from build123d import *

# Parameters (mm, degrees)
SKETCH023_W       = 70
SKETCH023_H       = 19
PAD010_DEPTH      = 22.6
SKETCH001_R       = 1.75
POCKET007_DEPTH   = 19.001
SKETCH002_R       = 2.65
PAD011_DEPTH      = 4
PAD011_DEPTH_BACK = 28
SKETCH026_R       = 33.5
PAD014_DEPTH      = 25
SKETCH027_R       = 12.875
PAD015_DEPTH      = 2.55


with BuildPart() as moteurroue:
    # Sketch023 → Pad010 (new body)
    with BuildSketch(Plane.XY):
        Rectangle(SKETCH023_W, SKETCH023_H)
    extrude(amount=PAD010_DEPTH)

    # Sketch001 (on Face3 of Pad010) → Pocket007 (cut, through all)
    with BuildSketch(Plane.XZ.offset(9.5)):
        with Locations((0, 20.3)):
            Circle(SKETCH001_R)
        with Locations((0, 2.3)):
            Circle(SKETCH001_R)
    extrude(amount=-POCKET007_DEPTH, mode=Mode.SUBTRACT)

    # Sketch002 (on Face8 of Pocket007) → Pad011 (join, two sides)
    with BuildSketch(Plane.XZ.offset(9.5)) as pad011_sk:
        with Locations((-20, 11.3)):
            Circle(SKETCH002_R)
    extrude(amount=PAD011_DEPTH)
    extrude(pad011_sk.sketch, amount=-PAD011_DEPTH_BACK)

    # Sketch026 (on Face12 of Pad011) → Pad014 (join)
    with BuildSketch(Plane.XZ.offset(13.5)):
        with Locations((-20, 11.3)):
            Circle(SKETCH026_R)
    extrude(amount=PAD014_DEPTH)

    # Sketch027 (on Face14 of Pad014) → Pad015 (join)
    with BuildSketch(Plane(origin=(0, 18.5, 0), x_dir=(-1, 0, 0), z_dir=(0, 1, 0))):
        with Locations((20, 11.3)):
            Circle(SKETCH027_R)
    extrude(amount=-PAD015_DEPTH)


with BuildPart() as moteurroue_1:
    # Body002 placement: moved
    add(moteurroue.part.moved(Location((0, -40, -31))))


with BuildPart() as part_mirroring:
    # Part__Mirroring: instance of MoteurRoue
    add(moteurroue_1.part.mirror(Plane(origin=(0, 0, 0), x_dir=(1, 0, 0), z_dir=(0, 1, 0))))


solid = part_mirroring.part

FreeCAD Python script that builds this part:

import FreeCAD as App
import Part
import Sketcher

doc = App.newDocument("Part")
params = doc.addObject("Spreadsheet::Sheet", "Params")
for row, (alias, value) in enumerate([
    ("sketch1_width", "70 mm"),
    ("sketch1_height", "19 mm"),
    ("pad1_length", "22.6 mm"),
    ("sketch2_diameter", "3.5 mm"),
    ("sketch3_diameter", "5.3 mm"),
    ("pad2_length", "4 mm"),
    ("pad2_length2", "28 mm"),
    ("sketch4_diameter", "67 mm"),
    ("pad3_length", "25 mm"),
    ("sketch5_diameter", "25.75 mm"),
    ("pad4_length", "2.55 mm"),
], start=1):
    params.set(f"A{row}", alias)
    params.set(f"B{row}", "=" + value)
    params.setAlias(f"B{row}", alias)

body = doc.addObject("PartDesign::Body", "Body")

# Sketch on XY plane
sketch1 = body.newObject("Sketcher::SketchObject", "Sketch")
sketch1.AttachmentSupport = (doc.getObject("XY_Plane"), [""])
sketch1.MapMode = "FlatFace"
sketch1.addGeometry([
    Part.LineSegment(App.Vector(-35, 10, 0), App.Vector(-35, -10, 0)),
    Part.LineSegment(App.Vector(-35, -10, 0), App.Vector(35, -10, 0)),
    Part.LineSegment(App.Vector(35, -10, 0), App.Vector(35, 10, 0)),
    Part.LineSegment(App.Vector(35, 10, 0), App.Vector(-35, 10, 0)),
], False)
sketch1.addConstraint([
    Sketcher.Constraint("Coincident", 0, 2, 1, 1),
    Sketcher.Constraint("Coincident", 1, 2, 2, 1),
    Sketcher.Constraint("Coincident", 2, 2, 3, 1),
    Sketcher.Constraint("Coincident", 3, 2, 0, 1),
    Sketcher.Constraint("Vertical", 0),
    Sketcher.Constraint("Horizontal", 1),
    Sketcher.Constraint("Vertical", 2),
    Sketcher.Constraint("Horizontal", 3),
    Sketcher.Constraint("Symmetric", 0, 2, 2, 2, -1, 1),
    Sketcher.Constraint("DistanceX", 1, 1, 1, 2, 70.0),
    Sketcher.Constraint("DistanceY", 0, 2, 0, 1, 19.0),
])
sketch1.setExpression("Constraints[9]", "Params.sketch1_width")
sketch1.setExpression("Constraints[10]", "Params.sketch1_height")
pad1 = body.newObject("PartDesign::Pad", "Pad")
pad1.Profile = sketch1
pad1.setExpression("Length", "Params.pad1_length")

# Sketch on XZ plane
sketch2 = body.newObject("Sketcher::SketchObject", "Sketch001")
sketch2.AttachmentSupport = (doc.getObject("XZ_Plane"), [""])
sketch2.MapMode = "FlatFace"
sketch2.AttachmentOffset = App.Placement(App.Vector(0, 0, 9.5), App.Rotation())
sketch2.addGeometry([
    Part.Circle(App.Vector(0, 20.3, 0), App.Vector(0, 0, 1), 1.8),
    Part.Circle(App.Vector(0, 2.3, 0), App.Vector(0, 0, 1), 1.8),
], False)
sketch2.addConstraint([
    Sketcher.Constraint("Equal", 0, 1),
    Sketcher.Constraint("PointOnObject", 0, 3, -2),
    Sketcher.Constraint("PointOnObject", 1, 3, -2),
    Sketcher.Constraint("Diameter", 0, 3.5),
    Sketcher.Constraint("DistanceY", 1, 3, 0, 3, 18.0),
    Sketcher.Constraint("DistanceY", -1, 1, 0, 3, 20.3),
])
sketch2.setExpression("Constraints[3]", "Params.sketch2_diameter")
pocket1 = body.newObject("PartDesign::Pocket", "Pocket")
pocket1.Profile = sketch2
pocket1.Type = "ThroughAll"

# Sketch on XZ plane
sketch3 = body.newObject("Sketcher::SketchObject", "Sketch002")
sketch3.AttachmentSupport = (doc.getObject("XZ_Plane"), [""])
sketch3.MapMode = "FlatFace"
sketch3.AttachmentOffset = App.Placement(App.Vector(0, 0, 9.5), App.Rotation())
sketch3.addGeometry(Part.Circle(App.Vector(-20, 11.3, 0), App.Vector(0, 0, 1), 2.6), False)
sketch3.addConstraint([
    Sketcher.Constraint("Diameter", 0, 5.3),
    Sketcher.Constraint("DistanceX", 0, 3, -1, 1, 20.0),
    Sketcher.Constraint("DistanceY", -1, 1, 0, 3, 11.3),
])
sketch3.setExpression("Constraints[0]", "Params.sketch3_diameter")
pad2 = body.newObject("PartDesign::Pad", "Pad001")
pad2.Profile = sketch3
pad2.Type = "TwoLengths"
pad2.setExpression("Length", "Params.pad2_length")
pad2.setExpression("Length2", "Params.pad2_length2")

# Sketch on XZ plane
sketch4 = body.newObject("Sketcher::SketchObject", "Sketch003")
sketch4.AttachmentSupport = (doc.getObject("XZ_Plane"), [""])
sketch4.MapMode = "FlatFace"
sketch4.AttachmentOffset = App.Placement(App.Vector(0, 0, 13.5), App.Rotation())
sketch4.addGeometry(Part.Circle(App.Vector(-20, 11, 0), App.Vector(0, 0, 1), 34), False)
sketch4.addConstraint([
    Sketcher.Constraint("Diameter", 0, 67.0),
    Sketcher.Constraint("DistanceX", 0, 3, -1, 1, 20.0),
    Sketcher.Constraint("DistanceY", -1, 1, 0, 3, 11.3),
])
sketch4.setExpression("Constraints[0]", "Params.sketch4_diameter")
pad3 = body.newObject("PartDesign::Pad", "Pad002")
pad3.Profile = sketch4
pad3.setExpression("Length", "Params.pad3_length")

# Sketch on XZ plane
sketch5 = body.newObject("Sketcher::SketchObject", "Sketch004")
sketch5.AttachmentSupport = (doc.getObject("XZ_Plane"), [""])
sketch5.MapMode = "FlatFace"
sketch5.AttachmentOffset = App.Placement(App.Vector(0, 0, -18.5), App.Rotation())
sketch5.addGeometry(Part.Circle(App.Vector(-20, 11, 0), App.Vector(0, 0, 1), 13), False)
sketch5.addConstraint([
    Sketcher.Constraint("Diameter", 0, 25.75),
    Sketcher.Constraint("DistanceX", 0, 3, -1, 1, 20.0),
    Sketcher.Constraint("DistanceY", -1, 1, 0, 3, 11.3),
])
sketch5.setExpression("Constraints[0]", "Params.sketch5_diameter")
pad4 = body.newObject("PartDesign::Pad", "Pad003")
pad4.Profile = sketch5
pad4.setExpression("Length", "Params.pad4_length")
body2 = doc.addObject("PartDesign::Body", "Body001")
doc.recompute()

body.Placement = App.Placement(App.Vector(0, -40, -31), App.Rotation(App.Vector(0, 0, 1), 0))
boolean = body2.newObject("PartDesign::Boolean", "Boolean")
boolean.Type = "Fuse"
boolean.addObjects([body])
body3 = doc.addObject("PartDesign::Body", "Body002")
doc.recompute()

mirroring = doc.addObject("Part::Mirroring", "Mirroring")
mirroring.Source = body2
mirroring.Base = App.Vector(0, 0, 0)
mirroring.Normal = App.Vector(0, 1, 0)
body3.BaseFeature = mirroring
doc.recompute()
body2.Visibility = False
mirroring.Visibility = False

doc.recompute()
